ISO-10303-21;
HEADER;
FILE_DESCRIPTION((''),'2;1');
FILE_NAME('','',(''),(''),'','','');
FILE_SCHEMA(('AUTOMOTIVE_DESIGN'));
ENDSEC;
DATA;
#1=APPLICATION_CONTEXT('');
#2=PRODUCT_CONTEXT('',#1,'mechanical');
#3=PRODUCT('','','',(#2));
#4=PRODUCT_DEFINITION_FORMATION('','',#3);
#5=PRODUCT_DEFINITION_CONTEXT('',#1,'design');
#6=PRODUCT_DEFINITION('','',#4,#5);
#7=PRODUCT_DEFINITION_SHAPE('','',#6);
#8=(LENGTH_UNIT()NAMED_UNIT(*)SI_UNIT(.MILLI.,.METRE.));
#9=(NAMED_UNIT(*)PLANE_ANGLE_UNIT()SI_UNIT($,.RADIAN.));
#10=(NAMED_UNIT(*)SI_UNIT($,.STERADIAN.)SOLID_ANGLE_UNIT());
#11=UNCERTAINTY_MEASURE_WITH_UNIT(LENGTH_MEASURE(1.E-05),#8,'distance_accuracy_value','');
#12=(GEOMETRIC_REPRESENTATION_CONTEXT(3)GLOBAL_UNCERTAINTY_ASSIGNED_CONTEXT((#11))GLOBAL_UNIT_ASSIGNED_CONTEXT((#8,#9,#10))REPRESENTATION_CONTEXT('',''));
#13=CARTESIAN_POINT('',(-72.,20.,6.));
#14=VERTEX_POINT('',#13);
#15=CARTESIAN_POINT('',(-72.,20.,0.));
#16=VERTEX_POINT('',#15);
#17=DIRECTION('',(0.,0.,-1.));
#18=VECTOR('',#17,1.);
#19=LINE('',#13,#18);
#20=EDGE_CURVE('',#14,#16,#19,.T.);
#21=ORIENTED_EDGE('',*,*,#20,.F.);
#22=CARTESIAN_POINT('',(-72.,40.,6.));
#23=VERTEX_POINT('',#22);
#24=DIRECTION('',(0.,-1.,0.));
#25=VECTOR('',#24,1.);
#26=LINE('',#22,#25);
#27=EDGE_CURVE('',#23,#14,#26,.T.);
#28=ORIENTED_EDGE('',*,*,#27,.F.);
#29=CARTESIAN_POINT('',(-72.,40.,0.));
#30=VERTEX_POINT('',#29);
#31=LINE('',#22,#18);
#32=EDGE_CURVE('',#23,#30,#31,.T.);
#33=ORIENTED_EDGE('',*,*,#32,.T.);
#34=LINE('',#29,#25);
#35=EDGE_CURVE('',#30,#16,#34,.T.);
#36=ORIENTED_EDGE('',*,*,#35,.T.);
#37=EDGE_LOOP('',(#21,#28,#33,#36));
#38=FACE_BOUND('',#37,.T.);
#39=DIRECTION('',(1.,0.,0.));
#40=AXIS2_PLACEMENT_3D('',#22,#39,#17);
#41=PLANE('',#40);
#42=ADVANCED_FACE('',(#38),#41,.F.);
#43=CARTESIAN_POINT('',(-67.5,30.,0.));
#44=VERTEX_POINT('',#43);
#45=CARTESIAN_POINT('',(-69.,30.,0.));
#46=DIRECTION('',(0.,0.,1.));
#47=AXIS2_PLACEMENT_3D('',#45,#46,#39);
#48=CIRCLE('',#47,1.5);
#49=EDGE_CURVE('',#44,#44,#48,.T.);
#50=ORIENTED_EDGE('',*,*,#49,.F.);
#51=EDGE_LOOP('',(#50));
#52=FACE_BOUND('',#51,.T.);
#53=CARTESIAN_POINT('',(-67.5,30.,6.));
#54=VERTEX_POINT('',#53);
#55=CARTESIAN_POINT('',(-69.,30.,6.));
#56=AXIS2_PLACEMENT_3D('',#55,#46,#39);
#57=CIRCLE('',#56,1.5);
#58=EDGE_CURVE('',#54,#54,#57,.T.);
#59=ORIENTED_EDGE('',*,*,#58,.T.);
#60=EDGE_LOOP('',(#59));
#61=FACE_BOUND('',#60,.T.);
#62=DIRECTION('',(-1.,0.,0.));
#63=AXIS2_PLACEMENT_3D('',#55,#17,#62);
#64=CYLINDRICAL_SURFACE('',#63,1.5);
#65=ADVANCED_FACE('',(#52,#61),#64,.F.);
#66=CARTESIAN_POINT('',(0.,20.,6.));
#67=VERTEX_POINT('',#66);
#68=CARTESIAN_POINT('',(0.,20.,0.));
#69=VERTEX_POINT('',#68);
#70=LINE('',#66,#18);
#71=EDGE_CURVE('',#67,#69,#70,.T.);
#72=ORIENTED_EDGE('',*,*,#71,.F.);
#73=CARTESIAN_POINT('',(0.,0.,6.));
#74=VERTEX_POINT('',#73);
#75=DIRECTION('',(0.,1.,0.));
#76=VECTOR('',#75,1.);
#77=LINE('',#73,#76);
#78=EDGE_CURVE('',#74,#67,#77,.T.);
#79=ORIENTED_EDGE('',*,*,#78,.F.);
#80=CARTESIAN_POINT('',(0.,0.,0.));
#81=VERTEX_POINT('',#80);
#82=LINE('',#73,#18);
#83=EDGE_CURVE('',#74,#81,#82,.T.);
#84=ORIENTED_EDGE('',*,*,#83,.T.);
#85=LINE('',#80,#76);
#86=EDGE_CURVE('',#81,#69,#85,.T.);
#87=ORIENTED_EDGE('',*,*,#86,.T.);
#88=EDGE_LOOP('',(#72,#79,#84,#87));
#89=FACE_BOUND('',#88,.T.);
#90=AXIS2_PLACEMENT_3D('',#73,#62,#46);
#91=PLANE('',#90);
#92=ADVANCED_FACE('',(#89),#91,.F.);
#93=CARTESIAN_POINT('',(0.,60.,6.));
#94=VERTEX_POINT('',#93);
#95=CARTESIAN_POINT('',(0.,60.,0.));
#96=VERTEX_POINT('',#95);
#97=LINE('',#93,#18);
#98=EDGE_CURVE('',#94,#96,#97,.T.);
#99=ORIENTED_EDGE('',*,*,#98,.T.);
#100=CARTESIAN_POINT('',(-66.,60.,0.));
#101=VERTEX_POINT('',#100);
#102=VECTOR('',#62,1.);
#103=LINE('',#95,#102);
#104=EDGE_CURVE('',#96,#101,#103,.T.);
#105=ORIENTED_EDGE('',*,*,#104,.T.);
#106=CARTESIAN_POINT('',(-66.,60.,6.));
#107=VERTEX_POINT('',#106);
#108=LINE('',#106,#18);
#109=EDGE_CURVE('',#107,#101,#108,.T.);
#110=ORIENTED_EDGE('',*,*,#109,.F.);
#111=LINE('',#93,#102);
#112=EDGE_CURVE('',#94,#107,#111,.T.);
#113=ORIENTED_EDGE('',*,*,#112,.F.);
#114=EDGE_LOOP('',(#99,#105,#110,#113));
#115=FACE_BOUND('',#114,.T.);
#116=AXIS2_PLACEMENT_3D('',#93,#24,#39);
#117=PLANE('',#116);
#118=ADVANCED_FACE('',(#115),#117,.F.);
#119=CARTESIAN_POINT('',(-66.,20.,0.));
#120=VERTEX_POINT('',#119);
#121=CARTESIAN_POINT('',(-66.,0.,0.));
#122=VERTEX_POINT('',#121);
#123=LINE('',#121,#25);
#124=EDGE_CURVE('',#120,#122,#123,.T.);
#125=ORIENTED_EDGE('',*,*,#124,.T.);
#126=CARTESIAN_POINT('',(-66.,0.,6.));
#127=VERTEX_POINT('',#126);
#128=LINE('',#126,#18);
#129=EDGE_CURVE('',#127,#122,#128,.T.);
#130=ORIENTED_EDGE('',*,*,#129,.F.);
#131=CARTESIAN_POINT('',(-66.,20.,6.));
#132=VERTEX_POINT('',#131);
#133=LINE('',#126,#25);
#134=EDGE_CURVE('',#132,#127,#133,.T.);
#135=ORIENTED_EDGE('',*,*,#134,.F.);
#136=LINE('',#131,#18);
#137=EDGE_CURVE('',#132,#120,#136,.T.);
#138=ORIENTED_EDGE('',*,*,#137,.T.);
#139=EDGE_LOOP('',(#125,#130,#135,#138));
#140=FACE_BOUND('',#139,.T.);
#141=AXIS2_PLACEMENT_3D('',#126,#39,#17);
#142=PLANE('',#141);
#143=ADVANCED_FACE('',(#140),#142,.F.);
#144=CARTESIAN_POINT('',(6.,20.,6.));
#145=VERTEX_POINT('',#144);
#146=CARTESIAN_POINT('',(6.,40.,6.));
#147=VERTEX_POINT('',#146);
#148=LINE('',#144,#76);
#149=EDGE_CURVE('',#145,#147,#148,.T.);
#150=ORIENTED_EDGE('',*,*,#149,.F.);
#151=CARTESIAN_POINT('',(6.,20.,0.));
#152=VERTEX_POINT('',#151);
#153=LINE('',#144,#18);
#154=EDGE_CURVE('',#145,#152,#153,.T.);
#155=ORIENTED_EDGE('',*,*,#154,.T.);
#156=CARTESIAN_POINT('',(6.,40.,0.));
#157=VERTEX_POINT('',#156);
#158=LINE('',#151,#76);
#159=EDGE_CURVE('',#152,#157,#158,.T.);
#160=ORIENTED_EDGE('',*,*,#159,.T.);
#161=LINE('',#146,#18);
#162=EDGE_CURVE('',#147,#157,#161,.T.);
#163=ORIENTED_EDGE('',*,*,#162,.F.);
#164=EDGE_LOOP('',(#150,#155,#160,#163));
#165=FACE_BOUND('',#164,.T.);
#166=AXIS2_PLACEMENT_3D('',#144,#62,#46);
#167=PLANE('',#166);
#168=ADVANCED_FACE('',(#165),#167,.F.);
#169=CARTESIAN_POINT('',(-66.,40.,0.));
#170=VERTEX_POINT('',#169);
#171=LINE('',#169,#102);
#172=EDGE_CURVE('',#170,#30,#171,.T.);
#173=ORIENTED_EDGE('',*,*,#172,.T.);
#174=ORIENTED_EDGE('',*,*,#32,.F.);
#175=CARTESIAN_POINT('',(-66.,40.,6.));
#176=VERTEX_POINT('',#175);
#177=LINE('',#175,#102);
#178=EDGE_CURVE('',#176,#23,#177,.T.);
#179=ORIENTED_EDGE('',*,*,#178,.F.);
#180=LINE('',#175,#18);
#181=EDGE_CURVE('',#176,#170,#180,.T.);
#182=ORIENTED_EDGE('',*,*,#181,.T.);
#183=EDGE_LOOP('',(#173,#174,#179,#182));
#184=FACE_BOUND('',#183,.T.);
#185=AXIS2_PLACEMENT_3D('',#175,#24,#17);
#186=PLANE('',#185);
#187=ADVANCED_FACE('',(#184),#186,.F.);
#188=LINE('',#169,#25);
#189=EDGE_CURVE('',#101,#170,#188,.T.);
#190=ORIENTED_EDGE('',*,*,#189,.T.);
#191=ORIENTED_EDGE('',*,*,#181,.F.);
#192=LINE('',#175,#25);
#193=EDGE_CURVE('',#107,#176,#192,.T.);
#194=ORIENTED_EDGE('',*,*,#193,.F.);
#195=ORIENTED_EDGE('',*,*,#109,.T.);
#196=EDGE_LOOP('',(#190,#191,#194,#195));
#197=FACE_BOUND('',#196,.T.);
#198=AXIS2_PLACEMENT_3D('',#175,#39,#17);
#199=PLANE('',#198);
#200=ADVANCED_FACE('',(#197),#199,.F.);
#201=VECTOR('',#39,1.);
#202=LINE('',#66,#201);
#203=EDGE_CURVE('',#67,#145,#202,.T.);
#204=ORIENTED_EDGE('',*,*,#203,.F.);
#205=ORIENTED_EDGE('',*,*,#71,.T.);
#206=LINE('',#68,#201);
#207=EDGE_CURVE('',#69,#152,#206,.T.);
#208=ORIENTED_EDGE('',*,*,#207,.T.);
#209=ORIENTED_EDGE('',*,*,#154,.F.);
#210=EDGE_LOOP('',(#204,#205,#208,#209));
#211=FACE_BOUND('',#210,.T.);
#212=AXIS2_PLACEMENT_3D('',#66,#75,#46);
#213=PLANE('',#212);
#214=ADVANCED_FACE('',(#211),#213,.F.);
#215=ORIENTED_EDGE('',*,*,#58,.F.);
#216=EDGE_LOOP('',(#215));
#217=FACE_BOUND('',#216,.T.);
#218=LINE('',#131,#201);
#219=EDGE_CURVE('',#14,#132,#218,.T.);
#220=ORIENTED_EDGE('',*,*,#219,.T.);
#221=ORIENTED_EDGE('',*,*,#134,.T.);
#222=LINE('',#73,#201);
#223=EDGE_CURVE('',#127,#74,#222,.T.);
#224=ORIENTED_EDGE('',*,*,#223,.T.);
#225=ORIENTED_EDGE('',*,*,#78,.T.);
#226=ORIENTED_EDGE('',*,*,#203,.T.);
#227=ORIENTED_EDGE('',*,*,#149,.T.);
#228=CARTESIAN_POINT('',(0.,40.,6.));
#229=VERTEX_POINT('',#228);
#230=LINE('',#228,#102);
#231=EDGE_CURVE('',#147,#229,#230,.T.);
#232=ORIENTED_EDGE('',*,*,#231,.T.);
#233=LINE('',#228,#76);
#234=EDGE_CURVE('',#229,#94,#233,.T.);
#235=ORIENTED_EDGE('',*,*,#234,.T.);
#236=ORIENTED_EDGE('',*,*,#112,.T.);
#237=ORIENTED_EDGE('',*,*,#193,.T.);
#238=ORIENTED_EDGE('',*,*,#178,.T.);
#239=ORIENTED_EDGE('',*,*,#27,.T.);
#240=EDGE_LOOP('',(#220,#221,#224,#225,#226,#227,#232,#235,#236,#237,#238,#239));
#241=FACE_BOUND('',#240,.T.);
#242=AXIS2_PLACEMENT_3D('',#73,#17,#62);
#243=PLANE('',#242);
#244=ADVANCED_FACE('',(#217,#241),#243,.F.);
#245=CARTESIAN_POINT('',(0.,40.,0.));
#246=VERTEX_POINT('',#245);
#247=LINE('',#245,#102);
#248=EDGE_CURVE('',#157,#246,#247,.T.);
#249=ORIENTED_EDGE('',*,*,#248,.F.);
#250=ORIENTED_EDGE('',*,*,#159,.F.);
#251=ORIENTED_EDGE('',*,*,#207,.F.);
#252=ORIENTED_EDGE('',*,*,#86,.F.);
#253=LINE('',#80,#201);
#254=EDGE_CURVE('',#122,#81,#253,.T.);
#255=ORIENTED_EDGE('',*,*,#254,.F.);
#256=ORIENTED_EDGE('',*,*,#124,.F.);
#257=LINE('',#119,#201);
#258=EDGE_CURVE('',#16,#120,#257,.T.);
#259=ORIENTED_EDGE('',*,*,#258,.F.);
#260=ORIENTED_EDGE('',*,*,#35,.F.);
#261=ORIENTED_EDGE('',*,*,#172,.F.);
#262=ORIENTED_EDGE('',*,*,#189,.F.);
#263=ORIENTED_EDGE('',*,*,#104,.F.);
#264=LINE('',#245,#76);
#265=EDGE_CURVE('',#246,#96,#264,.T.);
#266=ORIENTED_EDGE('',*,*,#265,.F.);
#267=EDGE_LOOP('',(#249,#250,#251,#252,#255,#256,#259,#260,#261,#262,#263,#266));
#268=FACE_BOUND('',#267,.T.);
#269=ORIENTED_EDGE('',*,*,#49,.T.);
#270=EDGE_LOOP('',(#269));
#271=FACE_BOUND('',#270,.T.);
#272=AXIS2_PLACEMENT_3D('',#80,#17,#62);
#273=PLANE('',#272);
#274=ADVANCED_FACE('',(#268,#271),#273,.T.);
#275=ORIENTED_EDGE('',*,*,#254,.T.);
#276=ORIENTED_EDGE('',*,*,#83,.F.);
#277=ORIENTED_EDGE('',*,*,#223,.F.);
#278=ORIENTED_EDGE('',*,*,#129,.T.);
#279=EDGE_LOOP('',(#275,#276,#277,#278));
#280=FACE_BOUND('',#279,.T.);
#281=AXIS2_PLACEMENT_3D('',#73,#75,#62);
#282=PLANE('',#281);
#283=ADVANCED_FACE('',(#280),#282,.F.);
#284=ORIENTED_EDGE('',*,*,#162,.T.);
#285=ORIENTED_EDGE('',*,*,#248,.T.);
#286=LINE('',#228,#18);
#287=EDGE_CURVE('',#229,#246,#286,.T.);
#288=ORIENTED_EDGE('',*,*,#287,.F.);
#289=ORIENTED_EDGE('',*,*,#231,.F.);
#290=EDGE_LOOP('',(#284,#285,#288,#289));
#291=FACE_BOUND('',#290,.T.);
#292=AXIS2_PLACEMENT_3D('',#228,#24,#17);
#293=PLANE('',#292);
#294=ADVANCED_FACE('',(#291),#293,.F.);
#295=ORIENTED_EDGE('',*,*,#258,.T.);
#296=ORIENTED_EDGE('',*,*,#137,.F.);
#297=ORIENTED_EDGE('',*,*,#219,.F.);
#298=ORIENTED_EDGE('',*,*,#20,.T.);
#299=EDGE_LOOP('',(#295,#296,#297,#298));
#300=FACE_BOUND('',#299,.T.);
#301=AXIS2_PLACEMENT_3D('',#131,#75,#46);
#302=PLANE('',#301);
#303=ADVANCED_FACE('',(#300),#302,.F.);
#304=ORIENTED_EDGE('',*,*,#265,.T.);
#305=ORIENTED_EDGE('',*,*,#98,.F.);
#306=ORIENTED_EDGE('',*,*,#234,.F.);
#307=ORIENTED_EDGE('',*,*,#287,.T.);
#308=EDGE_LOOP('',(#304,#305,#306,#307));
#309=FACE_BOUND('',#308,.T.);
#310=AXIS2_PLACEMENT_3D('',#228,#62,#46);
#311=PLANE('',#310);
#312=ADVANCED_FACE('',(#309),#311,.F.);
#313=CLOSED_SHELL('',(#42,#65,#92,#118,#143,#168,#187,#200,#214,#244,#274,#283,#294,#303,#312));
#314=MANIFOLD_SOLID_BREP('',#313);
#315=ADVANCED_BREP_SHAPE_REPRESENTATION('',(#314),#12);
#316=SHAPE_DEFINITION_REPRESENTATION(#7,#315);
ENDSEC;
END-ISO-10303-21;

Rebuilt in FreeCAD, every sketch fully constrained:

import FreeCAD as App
import Part
import Sketcher

V = App.Vector
Q = App.Units.Quantity

doc = App.newDocument("Part")
body = doc.addObject("PartDesign::Body", "Body")

# Sketch on XY plane
sketch1 = body.newObject("Sketcher::SketchObject", "Sketch")
sketch1.AttachmentSupport = (doc.getObject("XY_Plane"), [""])
sketch1.MapMode = "FlatFace"
sketch1.addGeometry(Part.LineSegment(V(-66, 0, 0), V(0, 0, 0)), False)
sketch1.addGeometry(Part.LineSegment(V(0, 0, 0), V(0, 20, 0)), False)
sketch1.addGeometry(Part.LineSegment(V(0, 20, 0), V(6, 20, 0)), False)
sketch1.addGeometry(Part.LineSegment(V(6, 20, 0), V(6, 40, 0)), False)
sketch1.addGeometry(Part.LineSegment(V(6, 40, 0), V(0, 40, 0)), False)
sketch1.addGeometry(Part.LineSegment(V(0, 40, 0), V(0, 60, 0)), False)
sketch1.addGeometry(Part.LineSegment(V(0, 60, 0), V(-66, 60, 0)), False)
sketch1.addGeometry(Part.LineSegment(V(-66, 60, 0), V(-66, 40, 0)), False)
sketch1.addGeometry(Part.LineSegment(V(-66, 40, 0), V(-72, 40, 0)), False)
sketch1.addGeometry(Part.LineSegment(V(-72, 40, 0), V(-72, 20, 0)), False)
sketch1.addGeometry(Part.LineSegment(V(-72, 20, 0), V(-66, 20, 0)), False)
sketch1.addGeometry(Part.LineSegment(V(-66, 20, 0), V(-66, 0, 0)), False)
sketch1.addGeometry(Part.Circle(V(-69, 30, 0), V(0, 0, 1), 1.5), False)
sketch1.addConstraint(Sketcher.Constraint("Coincident", 0, 2, 1, 1))
sketch1.addConstraint(Sketcher.Constraint("Coincident", 1, 2, 2, 1))
sketch1.addConstraint(Sketcher.Constraint("Coincident", 2, 2, 3, 1))
sketch1.addConstraint(Sketcher.Constraint("Coincident", 3, 2, 4, 1))
sketch1.addConstraint(Sketcher.Constraint("Coincident", 4, 2, 5, 1))
sketch1.addConstraint(Sketcher.Constraint("Coincident", 5, 2, 6, 1))
sketch1.addConstraint(Sketcher.Constraint("Coincident", 6, 2, 7, 1))
sketch1.addConstraint(Sketcher.Constraint("Coincident", 7, 2, 8, 1))
sketch1.addConstraint(Sketcher.Constraint("Coincident", 8, 2, 9, 1))
sketch1.addConstraint(Sketcher.Constraint("Coincident", 9, 2, 10, 1))
sketch1.addConstraint(Sketcher.Constraint("Coincident", 10, 2, 11, 1))
sketch1.addConstraint(Sketcher.Constraint("Coincident", 11, 2, 0, 1))
sketch1.addConstraint(Sketcher.Constraint("Horizontal", 0))
sketch1.addConstraint(Sketcher.Constraint("Vertical", 1))
sketch1.addConstraint(Sketcher.Constraint("Horizontal", 2))
sketch1.addConstraint(Sketcher.Constraint("Vertical", 3))
sketch1.addConstraint(Sketcher.Constraint("Horizontal", 4))
sketch1.addConstraint(Sketcher.Constraint("Vertical", 5))
sketch1.addConstraint(Sketcher.Constraint("Horizontal", 6))
sketch1.addConstraint(Sketcher.Constraint("Vertical", 7))
sketch1.addConstraint(Sketcher.Constraint("Horizontal", 8))
sketch1.addConstraint(Sketcher.Constraint("Vertical", 9))
sketch1.addConstraint(Sketcher.Constraint("Horizontal", 10))
sketch1.addConstraint(Sketcher.Constraint("Vertical", 11))
sketch1.addConstraint(Sketcher.Constraint("Coincident", 0, 2, -1, 1))
sketch1.addConstraint(Sketcher.Constraint("PointOnObject", 4, 2, -2))
sketch1.addConstraint(Sketcher.Constraint("Horizontal", 4, 2, 7, 2))
sketch1.addConstraint(Sketcher.Constraint("Horizontal", 2, 2, 9, 2))
sketch1.addConstraint(Sketcher.Constraint("Vertical", 7, 2, 10, 2))
sketch1.addConstraint(Sketcher.Constraint("Equal", 4, 8))
sketch1.addConstraint(Sketcher.Constraint("Equal", 1, 3))
sketch1.addConstraint(Sketcher.Constraint("Equal", 3, 5))
sketch1.addConstraint(Sketcher.Constraint("Diameter", 12, Q("3 mm")))
sketch1.addConstraint(Sketcher.Constraint("DistanceX", 0, 1, 0, 2, Q("66 mm")))
sketch1.addConstraint(Sketcher.Constraint("DistanceX", 2, 1, 2, 2, Q("6 mm")))
sketch1.addConstraint(Sketcher.Constraint("DistanceY", 1, 1, 1, 2, Q("20 mm")))
sketch1.addConstraint(Sketcher.Constraint("DistanceX", 12, 3, -1, 1, Q("69 mm")))
sketch1.addConstraint(Sketcher.Constraint("DistanceY", -1, 1, 12, 3, Q("30 mm")))
pad1 = body.newObject("PartDesign::Pad", "Pad")
pad1.Profile = sketch1
pad1.Length = 6

doc.recompute()
